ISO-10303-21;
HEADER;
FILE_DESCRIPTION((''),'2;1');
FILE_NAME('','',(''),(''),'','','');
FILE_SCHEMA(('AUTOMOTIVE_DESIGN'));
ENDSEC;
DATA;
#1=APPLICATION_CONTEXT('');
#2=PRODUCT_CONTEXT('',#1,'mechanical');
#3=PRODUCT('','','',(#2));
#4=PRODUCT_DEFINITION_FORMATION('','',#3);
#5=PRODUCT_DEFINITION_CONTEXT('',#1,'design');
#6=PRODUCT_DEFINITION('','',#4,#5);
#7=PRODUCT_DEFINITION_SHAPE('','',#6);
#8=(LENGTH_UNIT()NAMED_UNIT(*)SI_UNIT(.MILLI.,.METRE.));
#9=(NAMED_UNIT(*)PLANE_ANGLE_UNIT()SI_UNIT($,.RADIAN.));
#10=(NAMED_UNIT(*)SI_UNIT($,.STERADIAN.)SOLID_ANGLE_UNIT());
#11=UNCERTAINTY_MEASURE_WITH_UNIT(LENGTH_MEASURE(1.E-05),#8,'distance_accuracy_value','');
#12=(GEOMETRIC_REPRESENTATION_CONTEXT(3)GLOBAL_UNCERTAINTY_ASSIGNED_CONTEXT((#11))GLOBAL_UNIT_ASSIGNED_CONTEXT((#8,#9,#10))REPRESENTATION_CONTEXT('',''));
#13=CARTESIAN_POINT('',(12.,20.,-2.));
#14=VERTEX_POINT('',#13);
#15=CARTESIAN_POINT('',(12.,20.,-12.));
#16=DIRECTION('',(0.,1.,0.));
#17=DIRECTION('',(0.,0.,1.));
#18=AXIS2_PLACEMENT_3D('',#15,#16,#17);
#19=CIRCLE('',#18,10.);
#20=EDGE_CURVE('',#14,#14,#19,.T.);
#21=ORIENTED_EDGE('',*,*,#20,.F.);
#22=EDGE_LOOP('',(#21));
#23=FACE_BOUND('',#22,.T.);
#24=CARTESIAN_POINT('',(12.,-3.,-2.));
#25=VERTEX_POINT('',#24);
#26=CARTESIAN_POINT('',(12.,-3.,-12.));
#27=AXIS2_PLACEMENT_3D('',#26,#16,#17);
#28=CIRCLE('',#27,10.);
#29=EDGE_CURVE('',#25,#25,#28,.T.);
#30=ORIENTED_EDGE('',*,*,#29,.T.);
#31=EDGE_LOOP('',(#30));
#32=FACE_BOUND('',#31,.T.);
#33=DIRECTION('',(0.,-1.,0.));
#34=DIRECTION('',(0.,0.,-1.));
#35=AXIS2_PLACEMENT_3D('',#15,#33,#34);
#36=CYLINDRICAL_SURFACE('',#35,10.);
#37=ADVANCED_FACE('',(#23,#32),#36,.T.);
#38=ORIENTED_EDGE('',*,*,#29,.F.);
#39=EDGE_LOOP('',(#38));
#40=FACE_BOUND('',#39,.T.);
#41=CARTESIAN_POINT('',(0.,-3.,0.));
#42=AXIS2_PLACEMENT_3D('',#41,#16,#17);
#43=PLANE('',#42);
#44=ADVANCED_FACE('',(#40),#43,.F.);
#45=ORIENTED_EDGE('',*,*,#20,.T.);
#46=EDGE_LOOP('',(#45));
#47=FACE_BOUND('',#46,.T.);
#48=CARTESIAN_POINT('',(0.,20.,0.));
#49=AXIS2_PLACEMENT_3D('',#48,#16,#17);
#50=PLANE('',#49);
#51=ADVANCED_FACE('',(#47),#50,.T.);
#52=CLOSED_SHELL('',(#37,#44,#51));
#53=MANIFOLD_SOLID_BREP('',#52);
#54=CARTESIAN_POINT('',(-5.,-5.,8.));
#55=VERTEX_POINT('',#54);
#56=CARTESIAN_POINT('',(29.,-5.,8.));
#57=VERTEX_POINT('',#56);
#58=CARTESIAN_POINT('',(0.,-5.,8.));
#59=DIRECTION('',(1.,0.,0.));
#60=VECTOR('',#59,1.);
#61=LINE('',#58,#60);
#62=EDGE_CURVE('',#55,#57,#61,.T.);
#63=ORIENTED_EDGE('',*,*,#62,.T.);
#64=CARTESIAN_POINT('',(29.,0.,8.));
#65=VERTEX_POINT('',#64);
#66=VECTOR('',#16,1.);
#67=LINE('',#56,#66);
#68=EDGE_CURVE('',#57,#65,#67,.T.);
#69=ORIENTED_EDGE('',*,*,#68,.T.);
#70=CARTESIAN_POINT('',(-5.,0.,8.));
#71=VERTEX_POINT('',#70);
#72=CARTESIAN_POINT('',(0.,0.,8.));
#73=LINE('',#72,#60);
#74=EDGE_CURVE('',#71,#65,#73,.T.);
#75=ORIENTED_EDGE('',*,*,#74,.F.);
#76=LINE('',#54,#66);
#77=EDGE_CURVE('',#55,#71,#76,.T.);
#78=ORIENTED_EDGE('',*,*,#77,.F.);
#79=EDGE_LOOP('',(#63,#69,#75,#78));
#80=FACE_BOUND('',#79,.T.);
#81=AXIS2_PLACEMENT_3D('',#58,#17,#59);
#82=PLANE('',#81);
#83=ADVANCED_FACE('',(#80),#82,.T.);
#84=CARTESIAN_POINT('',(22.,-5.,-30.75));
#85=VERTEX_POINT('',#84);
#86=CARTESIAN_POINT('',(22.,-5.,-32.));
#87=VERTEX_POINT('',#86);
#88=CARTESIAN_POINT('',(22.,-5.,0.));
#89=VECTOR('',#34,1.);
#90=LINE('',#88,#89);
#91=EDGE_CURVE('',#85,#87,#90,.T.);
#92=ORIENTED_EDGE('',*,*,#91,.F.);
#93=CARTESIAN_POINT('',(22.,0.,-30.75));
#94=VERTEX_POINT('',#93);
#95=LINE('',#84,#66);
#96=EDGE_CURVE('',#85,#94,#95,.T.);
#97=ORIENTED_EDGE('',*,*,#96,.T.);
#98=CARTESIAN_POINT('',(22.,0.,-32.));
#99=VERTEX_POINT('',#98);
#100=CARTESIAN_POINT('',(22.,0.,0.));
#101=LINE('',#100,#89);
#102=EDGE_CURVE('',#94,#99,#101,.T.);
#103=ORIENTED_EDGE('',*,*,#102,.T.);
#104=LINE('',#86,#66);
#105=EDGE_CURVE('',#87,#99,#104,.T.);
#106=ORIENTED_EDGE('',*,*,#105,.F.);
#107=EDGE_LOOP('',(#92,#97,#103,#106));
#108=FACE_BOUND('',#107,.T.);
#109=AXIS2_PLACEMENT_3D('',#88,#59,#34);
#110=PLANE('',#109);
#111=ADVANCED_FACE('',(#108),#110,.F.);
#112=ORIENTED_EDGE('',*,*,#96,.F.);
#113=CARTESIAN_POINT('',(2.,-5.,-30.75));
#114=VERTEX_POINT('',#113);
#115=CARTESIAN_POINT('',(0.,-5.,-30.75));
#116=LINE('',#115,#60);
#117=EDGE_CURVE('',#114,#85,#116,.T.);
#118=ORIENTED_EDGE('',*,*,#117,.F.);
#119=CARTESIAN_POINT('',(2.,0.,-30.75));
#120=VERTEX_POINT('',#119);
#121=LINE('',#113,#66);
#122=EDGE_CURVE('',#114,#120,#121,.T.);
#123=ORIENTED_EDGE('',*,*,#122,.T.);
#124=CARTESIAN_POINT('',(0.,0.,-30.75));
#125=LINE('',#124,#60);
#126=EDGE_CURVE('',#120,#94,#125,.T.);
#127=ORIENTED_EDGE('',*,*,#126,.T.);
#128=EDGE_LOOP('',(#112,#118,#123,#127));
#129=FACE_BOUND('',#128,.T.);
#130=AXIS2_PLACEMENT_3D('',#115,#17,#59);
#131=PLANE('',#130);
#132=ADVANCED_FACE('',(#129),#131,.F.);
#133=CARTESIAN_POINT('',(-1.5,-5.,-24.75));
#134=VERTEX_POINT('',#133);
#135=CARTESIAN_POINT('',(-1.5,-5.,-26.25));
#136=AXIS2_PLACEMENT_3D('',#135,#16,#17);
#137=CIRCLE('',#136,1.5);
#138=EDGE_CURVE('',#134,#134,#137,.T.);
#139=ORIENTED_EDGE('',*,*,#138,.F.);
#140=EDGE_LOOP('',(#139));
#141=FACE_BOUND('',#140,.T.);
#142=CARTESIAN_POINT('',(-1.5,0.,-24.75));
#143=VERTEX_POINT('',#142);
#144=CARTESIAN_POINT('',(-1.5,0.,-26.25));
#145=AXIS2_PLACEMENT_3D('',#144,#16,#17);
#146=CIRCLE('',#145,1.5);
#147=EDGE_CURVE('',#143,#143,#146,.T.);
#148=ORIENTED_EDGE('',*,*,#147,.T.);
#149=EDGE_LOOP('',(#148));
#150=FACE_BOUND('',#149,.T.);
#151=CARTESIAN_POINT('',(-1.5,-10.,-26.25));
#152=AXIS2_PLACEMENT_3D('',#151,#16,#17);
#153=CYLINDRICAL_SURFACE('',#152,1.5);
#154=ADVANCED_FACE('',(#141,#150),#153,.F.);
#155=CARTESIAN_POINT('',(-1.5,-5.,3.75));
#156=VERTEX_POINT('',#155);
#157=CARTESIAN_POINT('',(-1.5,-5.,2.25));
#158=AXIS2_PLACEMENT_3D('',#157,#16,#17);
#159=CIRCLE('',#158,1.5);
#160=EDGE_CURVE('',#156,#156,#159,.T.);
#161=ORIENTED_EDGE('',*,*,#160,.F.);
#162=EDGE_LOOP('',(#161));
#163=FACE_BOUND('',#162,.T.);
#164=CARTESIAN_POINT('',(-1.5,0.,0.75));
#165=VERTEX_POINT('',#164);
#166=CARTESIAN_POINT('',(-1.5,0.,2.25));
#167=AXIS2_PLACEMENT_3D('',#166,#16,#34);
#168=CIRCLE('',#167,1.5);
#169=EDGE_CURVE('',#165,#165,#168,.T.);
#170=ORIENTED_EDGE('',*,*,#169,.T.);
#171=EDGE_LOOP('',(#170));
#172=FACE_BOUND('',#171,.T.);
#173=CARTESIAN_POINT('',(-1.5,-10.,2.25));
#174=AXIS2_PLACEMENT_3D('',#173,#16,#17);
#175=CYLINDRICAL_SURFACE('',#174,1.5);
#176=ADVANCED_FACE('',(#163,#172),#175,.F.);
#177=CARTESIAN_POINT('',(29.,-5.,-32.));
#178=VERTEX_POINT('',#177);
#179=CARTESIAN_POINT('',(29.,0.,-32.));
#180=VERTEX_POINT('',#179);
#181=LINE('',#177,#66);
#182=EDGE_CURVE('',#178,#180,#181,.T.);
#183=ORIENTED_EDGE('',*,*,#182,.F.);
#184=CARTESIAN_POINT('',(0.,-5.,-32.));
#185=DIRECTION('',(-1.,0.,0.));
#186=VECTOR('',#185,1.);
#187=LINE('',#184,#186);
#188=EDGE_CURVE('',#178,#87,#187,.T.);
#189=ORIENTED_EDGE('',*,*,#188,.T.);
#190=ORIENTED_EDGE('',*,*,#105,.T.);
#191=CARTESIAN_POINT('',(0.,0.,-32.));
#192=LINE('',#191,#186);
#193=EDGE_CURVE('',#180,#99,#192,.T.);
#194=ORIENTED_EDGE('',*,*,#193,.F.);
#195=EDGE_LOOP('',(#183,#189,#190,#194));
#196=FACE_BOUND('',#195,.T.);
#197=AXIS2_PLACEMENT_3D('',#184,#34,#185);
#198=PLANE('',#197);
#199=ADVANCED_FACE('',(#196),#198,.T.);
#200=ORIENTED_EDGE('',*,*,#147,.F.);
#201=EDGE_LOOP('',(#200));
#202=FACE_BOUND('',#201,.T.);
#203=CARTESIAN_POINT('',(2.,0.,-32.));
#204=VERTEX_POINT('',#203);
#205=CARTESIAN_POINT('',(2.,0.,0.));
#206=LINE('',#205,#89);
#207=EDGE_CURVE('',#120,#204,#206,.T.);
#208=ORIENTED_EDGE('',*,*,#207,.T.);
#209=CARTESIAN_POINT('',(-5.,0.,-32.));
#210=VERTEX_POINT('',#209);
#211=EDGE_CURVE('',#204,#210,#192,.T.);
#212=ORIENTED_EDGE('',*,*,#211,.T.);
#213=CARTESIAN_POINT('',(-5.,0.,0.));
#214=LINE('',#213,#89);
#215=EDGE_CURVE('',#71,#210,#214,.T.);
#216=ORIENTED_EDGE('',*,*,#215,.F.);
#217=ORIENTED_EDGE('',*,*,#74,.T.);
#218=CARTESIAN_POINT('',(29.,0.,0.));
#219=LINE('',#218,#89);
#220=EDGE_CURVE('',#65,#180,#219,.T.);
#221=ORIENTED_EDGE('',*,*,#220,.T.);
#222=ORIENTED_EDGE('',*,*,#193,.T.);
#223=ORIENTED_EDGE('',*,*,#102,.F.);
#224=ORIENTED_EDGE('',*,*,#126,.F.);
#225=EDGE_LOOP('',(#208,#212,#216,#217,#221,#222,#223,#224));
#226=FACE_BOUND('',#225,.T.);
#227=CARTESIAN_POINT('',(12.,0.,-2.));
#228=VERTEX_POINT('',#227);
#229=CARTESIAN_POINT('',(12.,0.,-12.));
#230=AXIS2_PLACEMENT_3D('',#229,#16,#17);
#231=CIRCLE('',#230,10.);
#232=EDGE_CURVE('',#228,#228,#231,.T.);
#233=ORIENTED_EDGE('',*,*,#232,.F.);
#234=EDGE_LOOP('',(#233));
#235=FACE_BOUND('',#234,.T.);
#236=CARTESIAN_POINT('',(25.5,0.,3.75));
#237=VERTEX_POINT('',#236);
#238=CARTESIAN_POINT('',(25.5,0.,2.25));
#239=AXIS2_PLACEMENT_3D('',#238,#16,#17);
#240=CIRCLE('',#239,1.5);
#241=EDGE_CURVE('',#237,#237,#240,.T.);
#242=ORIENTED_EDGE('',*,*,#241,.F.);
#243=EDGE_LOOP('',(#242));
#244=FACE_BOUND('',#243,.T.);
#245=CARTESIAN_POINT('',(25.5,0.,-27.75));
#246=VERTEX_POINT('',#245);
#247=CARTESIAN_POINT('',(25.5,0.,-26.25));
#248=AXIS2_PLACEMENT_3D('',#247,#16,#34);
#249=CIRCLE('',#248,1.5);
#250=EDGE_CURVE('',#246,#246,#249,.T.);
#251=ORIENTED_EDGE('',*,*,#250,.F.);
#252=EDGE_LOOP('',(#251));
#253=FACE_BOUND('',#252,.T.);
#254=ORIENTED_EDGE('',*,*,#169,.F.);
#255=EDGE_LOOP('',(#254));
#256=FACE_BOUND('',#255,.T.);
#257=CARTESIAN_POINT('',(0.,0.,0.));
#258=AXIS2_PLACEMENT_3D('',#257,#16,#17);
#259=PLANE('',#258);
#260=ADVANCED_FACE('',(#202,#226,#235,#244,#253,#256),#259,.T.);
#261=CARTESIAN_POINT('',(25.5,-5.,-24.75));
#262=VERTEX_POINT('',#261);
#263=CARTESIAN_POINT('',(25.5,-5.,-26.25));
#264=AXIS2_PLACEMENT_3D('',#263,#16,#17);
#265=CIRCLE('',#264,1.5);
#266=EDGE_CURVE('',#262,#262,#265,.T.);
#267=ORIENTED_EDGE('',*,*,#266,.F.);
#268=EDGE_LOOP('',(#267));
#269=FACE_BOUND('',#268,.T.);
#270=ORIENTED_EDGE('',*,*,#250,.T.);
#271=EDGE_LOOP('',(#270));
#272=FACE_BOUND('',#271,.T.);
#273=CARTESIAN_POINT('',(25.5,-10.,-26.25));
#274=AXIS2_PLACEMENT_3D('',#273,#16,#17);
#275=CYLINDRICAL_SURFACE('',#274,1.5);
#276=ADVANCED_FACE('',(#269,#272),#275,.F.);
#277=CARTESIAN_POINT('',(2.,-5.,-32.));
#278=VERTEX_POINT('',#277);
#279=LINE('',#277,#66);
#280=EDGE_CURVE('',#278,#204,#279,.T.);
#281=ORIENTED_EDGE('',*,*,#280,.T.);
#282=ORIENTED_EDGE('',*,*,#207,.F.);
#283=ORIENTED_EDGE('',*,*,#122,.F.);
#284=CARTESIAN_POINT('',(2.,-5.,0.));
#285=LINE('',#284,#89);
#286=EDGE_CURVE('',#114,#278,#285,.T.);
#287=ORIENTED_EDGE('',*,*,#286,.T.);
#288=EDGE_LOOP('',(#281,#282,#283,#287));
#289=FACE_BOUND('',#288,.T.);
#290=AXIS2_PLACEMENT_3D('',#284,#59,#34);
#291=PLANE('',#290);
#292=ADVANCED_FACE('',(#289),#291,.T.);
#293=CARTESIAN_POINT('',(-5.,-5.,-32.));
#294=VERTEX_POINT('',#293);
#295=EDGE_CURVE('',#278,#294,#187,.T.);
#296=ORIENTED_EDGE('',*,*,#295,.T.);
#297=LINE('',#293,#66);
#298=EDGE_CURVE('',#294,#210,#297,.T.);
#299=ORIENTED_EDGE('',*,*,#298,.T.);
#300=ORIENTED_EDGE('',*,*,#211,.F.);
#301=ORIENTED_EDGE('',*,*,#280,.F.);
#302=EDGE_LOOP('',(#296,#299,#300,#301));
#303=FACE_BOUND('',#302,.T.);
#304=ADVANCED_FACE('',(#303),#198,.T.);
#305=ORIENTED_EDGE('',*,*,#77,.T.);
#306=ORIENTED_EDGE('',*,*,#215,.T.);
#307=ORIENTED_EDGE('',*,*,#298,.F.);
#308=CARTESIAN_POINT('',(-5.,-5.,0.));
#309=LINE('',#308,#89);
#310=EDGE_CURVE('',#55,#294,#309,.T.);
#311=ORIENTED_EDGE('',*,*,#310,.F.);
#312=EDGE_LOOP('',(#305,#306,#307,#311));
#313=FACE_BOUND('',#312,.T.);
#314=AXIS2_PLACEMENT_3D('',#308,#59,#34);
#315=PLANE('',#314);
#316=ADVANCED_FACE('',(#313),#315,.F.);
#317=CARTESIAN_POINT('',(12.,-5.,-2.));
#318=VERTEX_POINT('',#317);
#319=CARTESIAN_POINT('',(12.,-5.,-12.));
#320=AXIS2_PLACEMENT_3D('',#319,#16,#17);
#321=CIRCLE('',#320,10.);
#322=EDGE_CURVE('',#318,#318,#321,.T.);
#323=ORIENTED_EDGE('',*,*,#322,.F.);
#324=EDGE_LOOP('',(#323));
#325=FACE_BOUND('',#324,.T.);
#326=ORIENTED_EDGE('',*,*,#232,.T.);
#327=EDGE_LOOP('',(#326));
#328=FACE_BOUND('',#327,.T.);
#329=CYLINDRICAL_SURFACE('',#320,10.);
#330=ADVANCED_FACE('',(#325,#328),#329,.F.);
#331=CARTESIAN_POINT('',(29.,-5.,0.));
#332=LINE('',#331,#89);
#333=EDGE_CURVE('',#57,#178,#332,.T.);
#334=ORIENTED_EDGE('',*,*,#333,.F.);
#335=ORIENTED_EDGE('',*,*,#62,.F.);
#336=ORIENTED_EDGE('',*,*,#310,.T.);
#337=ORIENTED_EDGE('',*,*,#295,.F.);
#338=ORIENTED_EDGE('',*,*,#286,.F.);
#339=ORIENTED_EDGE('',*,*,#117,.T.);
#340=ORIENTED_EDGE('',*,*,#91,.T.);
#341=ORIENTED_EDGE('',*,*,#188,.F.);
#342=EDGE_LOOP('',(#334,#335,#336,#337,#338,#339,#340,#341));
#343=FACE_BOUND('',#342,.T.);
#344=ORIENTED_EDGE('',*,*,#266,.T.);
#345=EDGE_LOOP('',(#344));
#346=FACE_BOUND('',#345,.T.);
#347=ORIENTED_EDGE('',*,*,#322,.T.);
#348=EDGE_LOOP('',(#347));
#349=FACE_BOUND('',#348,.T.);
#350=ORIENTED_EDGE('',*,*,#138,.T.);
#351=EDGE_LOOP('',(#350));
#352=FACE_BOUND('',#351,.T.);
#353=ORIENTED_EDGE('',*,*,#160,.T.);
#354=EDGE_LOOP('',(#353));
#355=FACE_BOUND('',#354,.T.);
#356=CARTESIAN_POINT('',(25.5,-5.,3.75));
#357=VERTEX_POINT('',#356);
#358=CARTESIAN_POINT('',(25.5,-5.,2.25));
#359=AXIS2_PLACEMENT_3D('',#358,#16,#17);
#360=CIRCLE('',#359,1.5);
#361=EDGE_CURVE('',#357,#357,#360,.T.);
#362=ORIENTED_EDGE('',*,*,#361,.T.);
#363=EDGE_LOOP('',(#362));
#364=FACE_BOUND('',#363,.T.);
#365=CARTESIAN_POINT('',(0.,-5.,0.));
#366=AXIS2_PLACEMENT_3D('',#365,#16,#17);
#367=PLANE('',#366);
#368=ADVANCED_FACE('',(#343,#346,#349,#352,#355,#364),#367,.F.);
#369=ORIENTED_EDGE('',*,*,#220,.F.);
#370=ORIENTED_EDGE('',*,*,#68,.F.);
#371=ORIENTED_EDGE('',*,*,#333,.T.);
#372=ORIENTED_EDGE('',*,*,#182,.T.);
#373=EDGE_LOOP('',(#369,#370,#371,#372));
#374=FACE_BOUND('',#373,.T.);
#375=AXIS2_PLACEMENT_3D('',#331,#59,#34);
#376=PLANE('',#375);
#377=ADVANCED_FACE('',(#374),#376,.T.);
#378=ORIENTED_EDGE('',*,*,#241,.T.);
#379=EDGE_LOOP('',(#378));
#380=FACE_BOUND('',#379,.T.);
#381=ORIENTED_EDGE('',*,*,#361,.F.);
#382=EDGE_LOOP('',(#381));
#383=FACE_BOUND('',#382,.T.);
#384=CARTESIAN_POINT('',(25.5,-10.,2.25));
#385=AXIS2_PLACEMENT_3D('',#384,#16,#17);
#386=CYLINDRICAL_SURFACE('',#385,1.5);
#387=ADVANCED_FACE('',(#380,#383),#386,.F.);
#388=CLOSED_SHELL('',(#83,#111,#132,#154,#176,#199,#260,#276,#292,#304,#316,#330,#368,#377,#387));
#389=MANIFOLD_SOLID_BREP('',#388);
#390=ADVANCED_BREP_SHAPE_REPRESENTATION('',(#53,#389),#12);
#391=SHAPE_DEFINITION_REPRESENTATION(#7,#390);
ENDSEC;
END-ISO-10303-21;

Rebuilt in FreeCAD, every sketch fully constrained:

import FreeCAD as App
import Part
import Sketcher
Q = App.Units.Quantity


def add_polygon(sketch, points):
    """Adds a closed chain of lines whose ends are joined by coincident constraints."""
    first, n = sketch.GeometryCount, len(points)
    for a, b in zip(points, points[1:] + points[:1]):
        sketch.addGeometry(Part.LineSegment(App.Vector(*a, 0), App.Vector(*b, 0)), False)
    for i in range(n):
        sketch.addConstraint(Sketcher.Constraint("Coincident", first + i, 2, first + (i + 1) % n, 1))

doc = App.newDocument("Part")
body = doc.addObject("PartDesign::Body", "Body")

# Sketch on XZ plane
sketch1 = body.newObject("Sketcher::SketchObject", "Sketch")
sketch1.AttachmentSupport = (doc.getObject("XZ_Plane"), [""])
sketch1.MapMode = "FlatFace"
sketch1.addGeometry(Part.Circle(App.Vector(12, -12, 0), App.Vector(0, 0, 1), 10), False)
sketch1.addConstraint([
    Sketcher.Constraint("Diameter", 0, Q("20 mm")),
    Sketcher.Constraint("DistanceX", -1, 1, 0, 3, Q("12 mm")),
    Sketcher.Constraint("DistanceY", 0, 3, -1, 1, Q("12 mm")),
])
pad1 = body.newObject("PartDesign::Pad", "Pad")
pad1.Profile = sketch1
pad1.Length = 20
pad1.Reversed = True

# Sketch on XZ plane
sketch2 = body.newObject("Sketcher::SketchObject", "Sketch001")
sketch2.AttachmentSupport = (doc.getObject("XZ_Plane"), [""])
sketch2.MapMode = "FlatFace"
sketch2.addGeometry(Part.Circle(App.Vector(12, -12, 0), App.Vector(0, 0, 1), 10), False)
sketch2.addConstraint([
    Sketcher.Constraint("Diameter", 0, Q("20 mm")),
    Sketcher.Constraint("DistanceX", -1, 1, 0, 3, Q("12 mm")),
    Sketcher.Constraint("DistanceY", 0, 3, -1, 1, Q("12 mm")),
])
pad2 = body.newObject("PartDesign::Pad", "Pad001")
pad2.Profile = sketch2
pad2.Length = 3
body2 = doc.addObject("PartDesign::Body", "Body001")

# Sketch on XZ plane
sketch3 = body2.newObject("Sketcher::SketchObject", "Sketch002")
sketch3.AttachmentSupport = (doc.getObject("XZ_Plane001"), [""])
sketch3.MapMode = "FlatFace"
add_polygon(sketch3, [(29, -32), (22, -32), (22, -30.75), (2, -30.75), (2, -32), (-5, -32), (-5, 8), (29, 8)])  # lines 0-7
sketch3.addGeometry(Part.Circle(App.Vector(12, -12, 0), App.Vector(0, 0, 1), 10), False)  # 8
sketch3.addConstraint([
    Sketcher.Constraint("Horizontal", 0),
    Sketcher.Constraint("Vertical", 1),
    Sketcher.Constraint("Horizontal", 2),
    Sketcher.Constraint("Vertical", 3),
    Sketcher.Constraint("Horizontal", 4),
    Sketcher.Constraint("Vertical", 5),
    Sketcher.Constraint("Horizontal", 6),
    Sketcher.Constraint("Vertical", 7),
    Sketcher.Constraint("Horizontal", 0, 2, 3, 2),
    Sketcher.Constraint("Equal", 0, 4),
    Sketcher.Constraint("Diameter", 8, Q("20 mm")),
    Sketcher.Constraint("DistanceX", 0, 2, 0, 1, Q("7 mm")),
    Sketcher.Constraint("DistanceX", 2, 2, 2, 1, Q("20 mm")),
    Sketcher.Constraint("DistanceY", 5, 1, 5, 2, Q("40 mm")),
    Sketcher.Constraint("DistanceX", -1, 1, 8, 3, Q("12 mm")),
    Sketcher.Constraint("DistanceY", 8, 3, -1, 1, Q("12 mm")),
    Sketcher.Constraint("DistanceX", -1, 1, 0, 2, Q("22 mm")),
    Sketcher.Constraint("DistanceY", 0, 2, -1, 1, Q("32 mm")),
    Sketcher.Constraint("DistanceY", 1, 1, 1, 2, Q("1.25 mm")),
])
pad3 = body2.newObject("PartDesign::Pad", "Pad002")
pad3.Profile = sketch3
pad3.Length = 5

# Sketch on XZ plane
sketch4 = body2.newObject("Sketcher::SketchObject", "Sketch003")
sketch4.AttachmentSupport = (doc.getObject("XZ_Plane001"), [""])
sketch4.MapMode = "FlatFace"
sketch4.addGeometry([
    Part.Circle(App.Vector(-1.5, -26.25, 0), App.Vector(0, 0, 1), 1.5),
    Part.Circle(App.Vector(-1.5, 2.25, 0), App.Vector(0, 0, 1), 1.5),
    Part.Circle(App.Vector(25.5, 2.25, 0), App.Vector(0, 0, 1), 1.5),
    Part.Circle(App.Vector(25.5, -26.25, 0), App.Vector(0, 0, 1), 1.5),
], False)
sketch4.addConstraint([
    Sketcher.Constraint("Equal", 0, 1),
    Sketcher.Constraint("Equal", 1, 2),
    Sketcher.Constraint("Equal", 2, 3),
    Sketcher.Constraint("Horizontal", 1, 3, 2, 3),
    Sketcher.Constraint("Horizontal", 0, 3, 3, 3),
    Sketcher.Constraint("Vertical", 0, 3, 1, 3),
    Sketcher.Constraint("Vertical", 2, 3, 3, 3),
    Sketcher.Constraint("Diameter", 0, Q("3 mm")),
    Sketcher.Constraint("DistanceX", 1, 3, 2, 3, Q("27 mm")),
    Sketcher.Constraint("DistanceX", 0, 3, -1, 1, Q("1.5 mm")),
    Sketcher.Constraint("DistanceY", 0, 3, 1, 3, Q("28.5 mm")),
    Sketcher.Constraint("DistanceY", 0, 3, -1, 1, Q("26.25 mm")),
])
pocket1 = body2.newObject("PartDesign::Pocket", "Pocket")
pocket1.Profile = sketch4
pocket1.Length = 10
pocket1.Reversed = True

doc.recompute()
